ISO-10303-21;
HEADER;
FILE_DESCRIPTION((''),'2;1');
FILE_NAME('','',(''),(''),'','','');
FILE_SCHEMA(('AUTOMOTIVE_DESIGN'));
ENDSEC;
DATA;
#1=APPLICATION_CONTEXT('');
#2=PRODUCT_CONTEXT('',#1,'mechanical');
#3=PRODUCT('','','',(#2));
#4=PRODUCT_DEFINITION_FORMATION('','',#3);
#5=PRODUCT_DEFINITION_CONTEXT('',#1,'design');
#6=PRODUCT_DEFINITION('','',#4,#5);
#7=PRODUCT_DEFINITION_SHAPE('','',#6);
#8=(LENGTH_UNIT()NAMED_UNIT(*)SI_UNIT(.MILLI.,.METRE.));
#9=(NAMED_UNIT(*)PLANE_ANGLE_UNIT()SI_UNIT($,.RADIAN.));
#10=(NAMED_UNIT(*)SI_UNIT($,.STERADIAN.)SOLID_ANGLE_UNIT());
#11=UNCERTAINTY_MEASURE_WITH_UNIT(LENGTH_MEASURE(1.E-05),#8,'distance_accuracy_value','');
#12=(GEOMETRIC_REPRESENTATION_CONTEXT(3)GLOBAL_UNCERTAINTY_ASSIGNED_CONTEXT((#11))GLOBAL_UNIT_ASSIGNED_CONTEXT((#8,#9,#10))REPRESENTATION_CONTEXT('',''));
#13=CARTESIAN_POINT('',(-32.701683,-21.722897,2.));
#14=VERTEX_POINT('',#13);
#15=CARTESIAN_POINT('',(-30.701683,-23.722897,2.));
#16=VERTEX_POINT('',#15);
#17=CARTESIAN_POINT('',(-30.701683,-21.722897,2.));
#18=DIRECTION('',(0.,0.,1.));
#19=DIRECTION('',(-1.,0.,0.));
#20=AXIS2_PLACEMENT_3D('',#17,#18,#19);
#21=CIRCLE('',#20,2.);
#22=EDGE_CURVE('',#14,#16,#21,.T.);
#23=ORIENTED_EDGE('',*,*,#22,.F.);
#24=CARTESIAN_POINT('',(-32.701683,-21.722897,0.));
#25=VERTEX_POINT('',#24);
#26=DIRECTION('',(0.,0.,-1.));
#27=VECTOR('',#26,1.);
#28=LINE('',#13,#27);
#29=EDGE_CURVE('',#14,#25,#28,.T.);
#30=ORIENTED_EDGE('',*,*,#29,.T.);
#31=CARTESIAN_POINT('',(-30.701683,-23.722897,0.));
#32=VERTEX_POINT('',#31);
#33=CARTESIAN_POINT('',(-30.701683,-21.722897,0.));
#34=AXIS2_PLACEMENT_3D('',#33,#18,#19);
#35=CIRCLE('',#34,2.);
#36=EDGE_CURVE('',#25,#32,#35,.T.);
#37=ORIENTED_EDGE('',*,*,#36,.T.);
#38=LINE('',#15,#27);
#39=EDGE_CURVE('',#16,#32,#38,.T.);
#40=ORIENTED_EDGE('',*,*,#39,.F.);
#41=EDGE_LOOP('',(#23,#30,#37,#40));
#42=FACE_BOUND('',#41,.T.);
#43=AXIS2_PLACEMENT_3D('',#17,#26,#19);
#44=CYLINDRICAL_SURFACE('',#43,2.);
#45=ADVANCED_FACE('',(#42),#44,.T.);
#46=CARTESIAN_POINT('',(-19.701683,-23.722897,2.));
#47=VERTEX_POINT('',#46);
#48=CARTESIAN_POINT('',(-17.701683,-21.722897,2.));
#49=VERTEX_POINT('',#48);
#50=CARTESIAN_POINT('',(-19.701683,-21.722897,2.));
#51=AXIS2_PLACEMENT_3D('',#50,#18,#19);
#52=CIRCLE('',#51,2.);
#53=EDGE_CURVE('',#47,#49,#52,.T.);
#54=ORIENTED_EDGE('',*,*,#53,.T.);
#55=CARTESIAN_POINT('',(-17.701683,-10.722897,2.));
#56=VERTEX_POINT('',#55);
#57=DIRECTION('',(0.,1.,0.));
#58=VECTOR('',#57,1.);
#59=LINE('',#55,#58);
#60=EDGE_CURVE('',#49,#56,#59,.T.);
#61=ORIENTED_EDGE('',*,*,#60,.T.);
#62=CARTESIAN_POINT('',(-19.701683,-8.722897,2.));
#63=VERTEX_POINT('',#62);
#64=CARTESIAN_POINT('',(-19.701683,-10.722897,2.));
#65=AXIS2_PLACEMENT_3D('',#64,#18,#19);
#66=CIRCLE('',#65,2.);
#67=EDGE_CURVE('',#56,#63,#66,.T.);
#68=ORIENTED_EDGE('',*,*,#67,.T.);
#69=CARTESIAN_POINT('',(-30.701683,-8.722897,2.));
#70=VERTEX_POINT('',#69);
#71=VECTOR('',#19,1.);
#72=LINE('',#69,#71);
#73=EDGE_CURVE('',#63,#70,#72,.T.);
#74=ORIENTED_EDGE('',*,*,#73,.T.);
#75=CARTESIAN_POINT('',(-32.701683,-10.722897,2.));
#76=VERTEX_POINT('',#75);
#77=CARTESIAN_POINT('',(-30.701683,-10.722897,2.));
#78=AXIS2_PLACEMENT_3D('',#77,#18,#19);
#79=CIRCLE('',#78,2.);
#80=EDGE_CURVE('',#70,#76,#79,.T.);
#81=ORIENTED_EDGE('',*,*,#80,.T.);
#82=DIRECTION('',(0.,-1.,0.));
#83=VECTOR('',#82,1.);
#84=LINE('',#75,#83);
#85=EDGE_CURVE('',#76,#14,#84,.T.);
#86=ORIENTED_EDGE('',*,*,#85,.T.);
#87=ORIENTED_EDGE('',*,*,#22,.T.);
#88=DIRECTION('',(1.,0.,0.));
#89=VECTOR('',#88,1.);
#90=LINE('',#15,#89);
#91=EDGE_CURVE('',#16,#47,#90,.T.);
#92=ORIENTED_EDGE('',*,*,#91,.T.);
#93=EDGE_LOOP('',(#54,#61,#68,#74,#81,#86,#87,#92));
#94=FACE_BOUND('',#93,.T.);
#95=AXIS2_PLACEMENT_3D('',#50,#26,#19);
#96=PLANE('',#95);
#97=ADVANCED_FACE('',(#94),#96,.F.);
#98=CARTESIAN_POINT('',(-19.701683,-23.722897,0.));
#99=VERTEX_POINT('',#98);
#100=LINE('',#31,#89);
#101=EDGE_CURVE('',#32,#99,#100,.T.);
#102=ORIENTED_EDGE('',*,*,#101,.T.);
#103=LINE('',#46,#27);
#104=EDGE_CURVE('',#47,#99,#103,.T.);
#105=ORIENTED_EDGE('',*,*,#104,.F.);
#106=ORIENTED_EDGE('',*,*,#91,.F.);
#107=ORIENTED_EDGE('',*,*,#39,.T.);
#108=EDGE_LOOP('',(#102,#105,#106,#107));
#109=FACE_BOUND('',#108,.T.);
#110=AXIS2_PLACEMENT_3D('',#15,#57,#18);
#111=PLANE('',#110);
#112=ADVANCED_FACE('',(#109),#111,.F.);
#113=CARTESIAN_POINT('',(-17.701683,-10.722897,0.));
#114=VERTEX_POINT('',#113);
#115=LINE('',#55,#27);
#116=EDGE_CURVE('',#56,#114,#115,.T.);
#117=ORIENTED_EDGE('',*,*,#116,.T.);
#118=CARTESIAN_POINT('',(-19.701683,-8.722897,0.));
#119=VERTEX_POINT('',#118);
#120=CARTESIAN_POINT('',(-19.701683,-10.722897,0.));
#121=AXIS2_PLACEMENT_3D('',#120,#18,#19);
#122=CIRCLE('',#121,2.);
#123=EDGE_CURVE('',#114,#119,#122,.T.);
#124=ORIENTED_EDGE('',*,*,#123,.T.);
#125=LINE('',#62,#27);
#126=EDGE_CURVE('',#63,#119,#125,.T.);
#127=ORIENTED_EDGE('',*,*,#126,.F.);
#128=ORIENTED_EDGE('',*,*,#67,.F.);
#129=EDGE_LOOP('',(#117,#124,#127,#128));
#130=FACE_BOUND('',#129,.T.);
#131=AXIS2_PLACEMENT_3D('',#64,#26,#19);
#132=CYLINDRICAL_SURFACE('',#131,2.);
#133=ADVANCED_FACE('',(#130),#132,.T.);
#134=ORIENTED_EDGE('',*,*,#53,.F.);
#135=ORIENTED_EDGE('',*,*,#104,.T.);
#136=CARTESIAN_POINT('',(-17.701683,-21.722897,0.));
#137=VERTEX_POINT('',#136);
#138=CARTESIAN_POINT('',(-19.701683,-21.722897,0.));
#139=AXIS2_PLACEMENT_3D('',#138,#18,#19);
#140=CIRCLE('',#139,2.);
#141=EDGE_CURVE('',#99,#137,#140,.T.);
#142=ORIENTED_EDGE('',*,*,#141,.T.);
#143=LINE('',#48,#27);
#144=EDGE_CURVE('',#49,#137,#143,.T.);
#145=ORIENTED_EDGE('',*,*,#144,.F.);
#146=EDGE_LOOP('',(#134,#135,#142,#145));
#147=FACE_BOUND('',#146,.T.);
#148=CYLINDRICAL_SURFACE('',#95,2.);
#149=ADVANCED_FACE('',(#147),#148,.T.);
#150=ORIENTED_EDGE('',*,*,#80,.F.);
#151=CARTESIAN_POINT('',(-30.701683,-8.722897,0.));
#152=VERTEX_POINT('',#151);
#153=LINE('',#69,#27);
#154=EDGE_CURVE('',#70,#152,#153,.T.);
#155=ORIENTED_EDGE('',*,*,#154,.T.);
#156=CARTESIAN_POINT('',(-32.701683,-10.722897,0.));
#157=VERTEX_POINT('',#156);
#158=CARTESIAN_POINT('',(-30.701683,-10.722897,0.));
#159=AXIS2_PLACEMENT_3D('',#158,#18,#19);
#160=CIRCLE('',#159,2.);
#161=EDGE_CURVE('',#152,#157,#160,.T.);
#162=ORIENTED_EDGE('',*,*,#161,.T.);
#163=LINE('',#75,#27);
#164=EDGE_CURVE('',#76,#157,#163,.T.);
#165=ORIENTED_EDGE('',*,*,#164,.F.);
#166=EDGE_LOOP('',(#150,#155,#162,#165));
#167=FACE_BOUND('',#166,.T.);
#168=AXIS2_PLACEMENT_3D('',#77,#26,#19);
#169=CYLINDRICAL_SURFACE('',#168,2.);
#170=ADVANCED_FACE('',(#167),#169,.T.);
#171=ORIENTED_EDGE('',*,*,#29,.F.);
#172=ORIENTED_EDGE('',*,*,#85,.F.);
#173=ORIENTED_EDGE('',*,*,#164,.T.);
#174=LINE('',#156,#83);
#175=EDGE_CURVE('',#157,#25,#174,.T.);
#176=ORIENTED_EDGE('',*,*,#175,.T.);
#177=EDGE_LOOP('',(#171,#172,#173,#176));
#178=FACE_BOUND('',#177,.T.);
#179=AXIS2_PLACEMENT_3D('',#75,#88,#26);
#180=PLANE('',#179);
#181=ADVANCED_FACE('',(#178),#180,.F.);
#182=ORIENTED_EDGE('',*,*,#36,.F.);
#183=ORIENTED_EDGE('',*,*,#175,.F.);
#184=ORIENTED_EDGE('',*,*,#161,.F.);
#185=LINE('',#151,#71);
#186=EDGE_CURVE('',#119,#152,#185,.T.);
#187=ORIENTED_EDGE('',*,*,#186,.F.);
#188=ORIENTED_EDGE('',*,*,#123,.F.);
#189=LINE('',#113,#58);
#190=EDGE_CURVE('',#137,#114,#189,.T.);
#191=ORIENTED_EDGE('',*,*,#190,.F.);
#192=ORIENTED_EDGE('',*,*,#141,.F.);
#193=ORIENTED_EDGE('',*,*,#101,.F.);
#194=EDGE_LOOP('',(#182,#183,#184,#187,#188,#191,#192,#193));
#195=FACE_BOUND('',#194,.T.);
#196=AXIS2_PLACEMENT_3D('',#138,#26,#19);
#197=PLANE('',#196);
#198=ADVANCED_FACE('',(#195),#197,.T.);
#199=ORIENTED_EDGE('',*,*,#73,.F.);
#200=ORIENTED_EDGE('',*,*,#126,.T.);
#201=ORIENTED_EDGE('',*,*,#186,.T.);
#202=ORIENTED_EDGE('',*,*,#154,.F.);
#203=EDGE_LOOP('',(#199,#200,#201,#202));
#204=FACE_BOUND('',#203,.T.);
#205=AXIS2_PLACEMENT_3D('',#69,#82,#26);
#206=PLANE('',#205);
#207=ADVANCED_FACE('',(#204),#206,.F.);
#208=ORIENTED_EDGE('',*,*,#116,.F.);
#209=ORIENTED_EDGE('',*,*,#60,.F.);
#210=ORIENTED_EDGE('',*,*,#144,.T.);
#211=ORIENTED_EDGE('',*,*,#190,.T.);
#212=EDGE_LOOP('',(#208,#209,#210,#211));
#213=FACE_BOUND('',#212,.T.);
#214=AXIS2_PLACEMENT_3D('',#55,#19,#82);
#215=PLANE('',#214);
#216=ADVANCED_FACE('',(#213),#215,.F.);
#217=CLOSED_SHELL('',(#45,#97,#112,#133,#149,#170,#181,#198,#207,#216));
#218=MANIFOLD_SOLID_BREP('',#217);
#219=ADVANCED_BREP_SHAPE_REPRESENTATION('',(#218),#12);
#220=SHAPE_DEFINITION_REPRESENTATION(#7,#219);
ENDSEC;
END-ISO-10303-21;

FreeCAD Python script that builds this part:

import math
import FreeCAD as App
import Part
import Sketcher

doc = App.newDocument("Part")
body = doc.addObject("PartDesign::Body", "Body")

# Sketch on XY plane
sketch1 = body.newObject("Sketcher::SketchObject", "Sketch")
sketch1.AttachmentSupport = (doc.getObject("XY_Plane"), [""])
sketch1.MapMode = "FlatFace"
sketch1.addGeometry(Part.LineSegment(App.Vector(-19.7, -8.7, 0), App.Vector(-30.7, -8.7, 0)), False)
sketch1.addGeometry(Part.ArcOfCircle(Part.Circle(App.Vector(-30.7, -10.7, 0), App.Vector(0, 0, 1), 2), math.radians(90), math.radians(180)), False)
sketch1.addGeometry(Part.LineSegment(App.Vector(-32.7, -10.7, 0), App.Vector(-32.7, -21.7, 0)), False)
sketch1.addGeometry(Part.ArcOfCircle(Part.Circle(App.Vector(-30.7, -21.7, 0), App.Vector(0, 0, 1), 2), math.radians(180), math.radians(270)), False)
sketch1.addGeometry(Part.LineSegment(App.Vector(-30.7, -23.7, 0), App.Vector(-19.7, -23.7, 0)), False)
sketch1.addGeometry(Part.ArcOfCircle(Part.Circle(App.Vector(-19.7, -21.7, 0), App.Vector(0, 0, 1), 2), math.radians(-90), math.radians(0)), False)
sketch1.addGeometry(Part.LineSegment(App.Vector(-17.7, -21.7, 0), App.Vector(-17.7, -10.7, 0)), False)
sketch1.addGeometry(Part.ArcOfCircle(Part.Circle(App.Vector(-19.7, -10.7, 0), App.Vector(0, 0, 1), 2), math.radians(0), math.radians(90)), False)
sketch1.addConstraint(Sketcher.Constraint("Tangent", 0, 2, 1, 1))
sketch1.addConstraint(Sketcher.Constraint("Tangent", 1, 2, 2, 1))
sketch1.addConstraint(Sketcher.Constraint("Tangent", 2, 2, 3, 1))
sketch1.addConstraint(Sketcher.Constraint("Tangent", 3, 2, 4, 1))
sketch1.addConstraint(Sketcher.Constraint("Tangent", 4, 2, 5, 1))
sketch1.addConstraint(Sketcher.Constraint("Tangent", 5, 2, 6, 1))
sketch1.addConstraint(Sketcher.Constraint("Tangent", 6, 2, 7, 1))
sketch1.addConstraint(Sketcher.Constraint("Tangent", 7, 2, 0, 1))
sketch1.addConstraint(Sketcher.Constraint("Horizontal", 0))
sketch1.addConstraint(Sketcher.Constraint("Vertical", 2))
sketch1.addConstraint(Sketcher.Constraint("Horizontal", 4))
sketch1.addConstraint(Sketcher.Constraint("Vertical", 6))
sketch1.addConstraint(Sketcher.Constraint("Equal", 1, 3))
sketch1.addConstraint(Sketcher.Constraint("Equal", 3, 5))
sketch1.addConstraint(Sketcher.Constraint("Equal", 5, 7))
sketch1.addConstraint(Sketcher.Constraint("Equal", 4, 2))
sketch1.addConstraint(Sketcher.Constraint("Radius", 1, 2.0))
sketch1.addConstraint(Sketcher.Constraint("DistanceX", 0, 2, 0, 1, 11.0))
sketch1.addConstraint(Sketcher.Constraint("DistanceX", 1, 3, -1, 1, 30.701683))
sketch1.addConstraint(Sketcher.Constraint("DistanceY", 1, 3, -1, 1, 10.722897))
pad1 = body.newObject("PartDesign::Pad", "Pad")
pad1.Profile = sketch1
pad1.Length = 2

doc.recompute()
